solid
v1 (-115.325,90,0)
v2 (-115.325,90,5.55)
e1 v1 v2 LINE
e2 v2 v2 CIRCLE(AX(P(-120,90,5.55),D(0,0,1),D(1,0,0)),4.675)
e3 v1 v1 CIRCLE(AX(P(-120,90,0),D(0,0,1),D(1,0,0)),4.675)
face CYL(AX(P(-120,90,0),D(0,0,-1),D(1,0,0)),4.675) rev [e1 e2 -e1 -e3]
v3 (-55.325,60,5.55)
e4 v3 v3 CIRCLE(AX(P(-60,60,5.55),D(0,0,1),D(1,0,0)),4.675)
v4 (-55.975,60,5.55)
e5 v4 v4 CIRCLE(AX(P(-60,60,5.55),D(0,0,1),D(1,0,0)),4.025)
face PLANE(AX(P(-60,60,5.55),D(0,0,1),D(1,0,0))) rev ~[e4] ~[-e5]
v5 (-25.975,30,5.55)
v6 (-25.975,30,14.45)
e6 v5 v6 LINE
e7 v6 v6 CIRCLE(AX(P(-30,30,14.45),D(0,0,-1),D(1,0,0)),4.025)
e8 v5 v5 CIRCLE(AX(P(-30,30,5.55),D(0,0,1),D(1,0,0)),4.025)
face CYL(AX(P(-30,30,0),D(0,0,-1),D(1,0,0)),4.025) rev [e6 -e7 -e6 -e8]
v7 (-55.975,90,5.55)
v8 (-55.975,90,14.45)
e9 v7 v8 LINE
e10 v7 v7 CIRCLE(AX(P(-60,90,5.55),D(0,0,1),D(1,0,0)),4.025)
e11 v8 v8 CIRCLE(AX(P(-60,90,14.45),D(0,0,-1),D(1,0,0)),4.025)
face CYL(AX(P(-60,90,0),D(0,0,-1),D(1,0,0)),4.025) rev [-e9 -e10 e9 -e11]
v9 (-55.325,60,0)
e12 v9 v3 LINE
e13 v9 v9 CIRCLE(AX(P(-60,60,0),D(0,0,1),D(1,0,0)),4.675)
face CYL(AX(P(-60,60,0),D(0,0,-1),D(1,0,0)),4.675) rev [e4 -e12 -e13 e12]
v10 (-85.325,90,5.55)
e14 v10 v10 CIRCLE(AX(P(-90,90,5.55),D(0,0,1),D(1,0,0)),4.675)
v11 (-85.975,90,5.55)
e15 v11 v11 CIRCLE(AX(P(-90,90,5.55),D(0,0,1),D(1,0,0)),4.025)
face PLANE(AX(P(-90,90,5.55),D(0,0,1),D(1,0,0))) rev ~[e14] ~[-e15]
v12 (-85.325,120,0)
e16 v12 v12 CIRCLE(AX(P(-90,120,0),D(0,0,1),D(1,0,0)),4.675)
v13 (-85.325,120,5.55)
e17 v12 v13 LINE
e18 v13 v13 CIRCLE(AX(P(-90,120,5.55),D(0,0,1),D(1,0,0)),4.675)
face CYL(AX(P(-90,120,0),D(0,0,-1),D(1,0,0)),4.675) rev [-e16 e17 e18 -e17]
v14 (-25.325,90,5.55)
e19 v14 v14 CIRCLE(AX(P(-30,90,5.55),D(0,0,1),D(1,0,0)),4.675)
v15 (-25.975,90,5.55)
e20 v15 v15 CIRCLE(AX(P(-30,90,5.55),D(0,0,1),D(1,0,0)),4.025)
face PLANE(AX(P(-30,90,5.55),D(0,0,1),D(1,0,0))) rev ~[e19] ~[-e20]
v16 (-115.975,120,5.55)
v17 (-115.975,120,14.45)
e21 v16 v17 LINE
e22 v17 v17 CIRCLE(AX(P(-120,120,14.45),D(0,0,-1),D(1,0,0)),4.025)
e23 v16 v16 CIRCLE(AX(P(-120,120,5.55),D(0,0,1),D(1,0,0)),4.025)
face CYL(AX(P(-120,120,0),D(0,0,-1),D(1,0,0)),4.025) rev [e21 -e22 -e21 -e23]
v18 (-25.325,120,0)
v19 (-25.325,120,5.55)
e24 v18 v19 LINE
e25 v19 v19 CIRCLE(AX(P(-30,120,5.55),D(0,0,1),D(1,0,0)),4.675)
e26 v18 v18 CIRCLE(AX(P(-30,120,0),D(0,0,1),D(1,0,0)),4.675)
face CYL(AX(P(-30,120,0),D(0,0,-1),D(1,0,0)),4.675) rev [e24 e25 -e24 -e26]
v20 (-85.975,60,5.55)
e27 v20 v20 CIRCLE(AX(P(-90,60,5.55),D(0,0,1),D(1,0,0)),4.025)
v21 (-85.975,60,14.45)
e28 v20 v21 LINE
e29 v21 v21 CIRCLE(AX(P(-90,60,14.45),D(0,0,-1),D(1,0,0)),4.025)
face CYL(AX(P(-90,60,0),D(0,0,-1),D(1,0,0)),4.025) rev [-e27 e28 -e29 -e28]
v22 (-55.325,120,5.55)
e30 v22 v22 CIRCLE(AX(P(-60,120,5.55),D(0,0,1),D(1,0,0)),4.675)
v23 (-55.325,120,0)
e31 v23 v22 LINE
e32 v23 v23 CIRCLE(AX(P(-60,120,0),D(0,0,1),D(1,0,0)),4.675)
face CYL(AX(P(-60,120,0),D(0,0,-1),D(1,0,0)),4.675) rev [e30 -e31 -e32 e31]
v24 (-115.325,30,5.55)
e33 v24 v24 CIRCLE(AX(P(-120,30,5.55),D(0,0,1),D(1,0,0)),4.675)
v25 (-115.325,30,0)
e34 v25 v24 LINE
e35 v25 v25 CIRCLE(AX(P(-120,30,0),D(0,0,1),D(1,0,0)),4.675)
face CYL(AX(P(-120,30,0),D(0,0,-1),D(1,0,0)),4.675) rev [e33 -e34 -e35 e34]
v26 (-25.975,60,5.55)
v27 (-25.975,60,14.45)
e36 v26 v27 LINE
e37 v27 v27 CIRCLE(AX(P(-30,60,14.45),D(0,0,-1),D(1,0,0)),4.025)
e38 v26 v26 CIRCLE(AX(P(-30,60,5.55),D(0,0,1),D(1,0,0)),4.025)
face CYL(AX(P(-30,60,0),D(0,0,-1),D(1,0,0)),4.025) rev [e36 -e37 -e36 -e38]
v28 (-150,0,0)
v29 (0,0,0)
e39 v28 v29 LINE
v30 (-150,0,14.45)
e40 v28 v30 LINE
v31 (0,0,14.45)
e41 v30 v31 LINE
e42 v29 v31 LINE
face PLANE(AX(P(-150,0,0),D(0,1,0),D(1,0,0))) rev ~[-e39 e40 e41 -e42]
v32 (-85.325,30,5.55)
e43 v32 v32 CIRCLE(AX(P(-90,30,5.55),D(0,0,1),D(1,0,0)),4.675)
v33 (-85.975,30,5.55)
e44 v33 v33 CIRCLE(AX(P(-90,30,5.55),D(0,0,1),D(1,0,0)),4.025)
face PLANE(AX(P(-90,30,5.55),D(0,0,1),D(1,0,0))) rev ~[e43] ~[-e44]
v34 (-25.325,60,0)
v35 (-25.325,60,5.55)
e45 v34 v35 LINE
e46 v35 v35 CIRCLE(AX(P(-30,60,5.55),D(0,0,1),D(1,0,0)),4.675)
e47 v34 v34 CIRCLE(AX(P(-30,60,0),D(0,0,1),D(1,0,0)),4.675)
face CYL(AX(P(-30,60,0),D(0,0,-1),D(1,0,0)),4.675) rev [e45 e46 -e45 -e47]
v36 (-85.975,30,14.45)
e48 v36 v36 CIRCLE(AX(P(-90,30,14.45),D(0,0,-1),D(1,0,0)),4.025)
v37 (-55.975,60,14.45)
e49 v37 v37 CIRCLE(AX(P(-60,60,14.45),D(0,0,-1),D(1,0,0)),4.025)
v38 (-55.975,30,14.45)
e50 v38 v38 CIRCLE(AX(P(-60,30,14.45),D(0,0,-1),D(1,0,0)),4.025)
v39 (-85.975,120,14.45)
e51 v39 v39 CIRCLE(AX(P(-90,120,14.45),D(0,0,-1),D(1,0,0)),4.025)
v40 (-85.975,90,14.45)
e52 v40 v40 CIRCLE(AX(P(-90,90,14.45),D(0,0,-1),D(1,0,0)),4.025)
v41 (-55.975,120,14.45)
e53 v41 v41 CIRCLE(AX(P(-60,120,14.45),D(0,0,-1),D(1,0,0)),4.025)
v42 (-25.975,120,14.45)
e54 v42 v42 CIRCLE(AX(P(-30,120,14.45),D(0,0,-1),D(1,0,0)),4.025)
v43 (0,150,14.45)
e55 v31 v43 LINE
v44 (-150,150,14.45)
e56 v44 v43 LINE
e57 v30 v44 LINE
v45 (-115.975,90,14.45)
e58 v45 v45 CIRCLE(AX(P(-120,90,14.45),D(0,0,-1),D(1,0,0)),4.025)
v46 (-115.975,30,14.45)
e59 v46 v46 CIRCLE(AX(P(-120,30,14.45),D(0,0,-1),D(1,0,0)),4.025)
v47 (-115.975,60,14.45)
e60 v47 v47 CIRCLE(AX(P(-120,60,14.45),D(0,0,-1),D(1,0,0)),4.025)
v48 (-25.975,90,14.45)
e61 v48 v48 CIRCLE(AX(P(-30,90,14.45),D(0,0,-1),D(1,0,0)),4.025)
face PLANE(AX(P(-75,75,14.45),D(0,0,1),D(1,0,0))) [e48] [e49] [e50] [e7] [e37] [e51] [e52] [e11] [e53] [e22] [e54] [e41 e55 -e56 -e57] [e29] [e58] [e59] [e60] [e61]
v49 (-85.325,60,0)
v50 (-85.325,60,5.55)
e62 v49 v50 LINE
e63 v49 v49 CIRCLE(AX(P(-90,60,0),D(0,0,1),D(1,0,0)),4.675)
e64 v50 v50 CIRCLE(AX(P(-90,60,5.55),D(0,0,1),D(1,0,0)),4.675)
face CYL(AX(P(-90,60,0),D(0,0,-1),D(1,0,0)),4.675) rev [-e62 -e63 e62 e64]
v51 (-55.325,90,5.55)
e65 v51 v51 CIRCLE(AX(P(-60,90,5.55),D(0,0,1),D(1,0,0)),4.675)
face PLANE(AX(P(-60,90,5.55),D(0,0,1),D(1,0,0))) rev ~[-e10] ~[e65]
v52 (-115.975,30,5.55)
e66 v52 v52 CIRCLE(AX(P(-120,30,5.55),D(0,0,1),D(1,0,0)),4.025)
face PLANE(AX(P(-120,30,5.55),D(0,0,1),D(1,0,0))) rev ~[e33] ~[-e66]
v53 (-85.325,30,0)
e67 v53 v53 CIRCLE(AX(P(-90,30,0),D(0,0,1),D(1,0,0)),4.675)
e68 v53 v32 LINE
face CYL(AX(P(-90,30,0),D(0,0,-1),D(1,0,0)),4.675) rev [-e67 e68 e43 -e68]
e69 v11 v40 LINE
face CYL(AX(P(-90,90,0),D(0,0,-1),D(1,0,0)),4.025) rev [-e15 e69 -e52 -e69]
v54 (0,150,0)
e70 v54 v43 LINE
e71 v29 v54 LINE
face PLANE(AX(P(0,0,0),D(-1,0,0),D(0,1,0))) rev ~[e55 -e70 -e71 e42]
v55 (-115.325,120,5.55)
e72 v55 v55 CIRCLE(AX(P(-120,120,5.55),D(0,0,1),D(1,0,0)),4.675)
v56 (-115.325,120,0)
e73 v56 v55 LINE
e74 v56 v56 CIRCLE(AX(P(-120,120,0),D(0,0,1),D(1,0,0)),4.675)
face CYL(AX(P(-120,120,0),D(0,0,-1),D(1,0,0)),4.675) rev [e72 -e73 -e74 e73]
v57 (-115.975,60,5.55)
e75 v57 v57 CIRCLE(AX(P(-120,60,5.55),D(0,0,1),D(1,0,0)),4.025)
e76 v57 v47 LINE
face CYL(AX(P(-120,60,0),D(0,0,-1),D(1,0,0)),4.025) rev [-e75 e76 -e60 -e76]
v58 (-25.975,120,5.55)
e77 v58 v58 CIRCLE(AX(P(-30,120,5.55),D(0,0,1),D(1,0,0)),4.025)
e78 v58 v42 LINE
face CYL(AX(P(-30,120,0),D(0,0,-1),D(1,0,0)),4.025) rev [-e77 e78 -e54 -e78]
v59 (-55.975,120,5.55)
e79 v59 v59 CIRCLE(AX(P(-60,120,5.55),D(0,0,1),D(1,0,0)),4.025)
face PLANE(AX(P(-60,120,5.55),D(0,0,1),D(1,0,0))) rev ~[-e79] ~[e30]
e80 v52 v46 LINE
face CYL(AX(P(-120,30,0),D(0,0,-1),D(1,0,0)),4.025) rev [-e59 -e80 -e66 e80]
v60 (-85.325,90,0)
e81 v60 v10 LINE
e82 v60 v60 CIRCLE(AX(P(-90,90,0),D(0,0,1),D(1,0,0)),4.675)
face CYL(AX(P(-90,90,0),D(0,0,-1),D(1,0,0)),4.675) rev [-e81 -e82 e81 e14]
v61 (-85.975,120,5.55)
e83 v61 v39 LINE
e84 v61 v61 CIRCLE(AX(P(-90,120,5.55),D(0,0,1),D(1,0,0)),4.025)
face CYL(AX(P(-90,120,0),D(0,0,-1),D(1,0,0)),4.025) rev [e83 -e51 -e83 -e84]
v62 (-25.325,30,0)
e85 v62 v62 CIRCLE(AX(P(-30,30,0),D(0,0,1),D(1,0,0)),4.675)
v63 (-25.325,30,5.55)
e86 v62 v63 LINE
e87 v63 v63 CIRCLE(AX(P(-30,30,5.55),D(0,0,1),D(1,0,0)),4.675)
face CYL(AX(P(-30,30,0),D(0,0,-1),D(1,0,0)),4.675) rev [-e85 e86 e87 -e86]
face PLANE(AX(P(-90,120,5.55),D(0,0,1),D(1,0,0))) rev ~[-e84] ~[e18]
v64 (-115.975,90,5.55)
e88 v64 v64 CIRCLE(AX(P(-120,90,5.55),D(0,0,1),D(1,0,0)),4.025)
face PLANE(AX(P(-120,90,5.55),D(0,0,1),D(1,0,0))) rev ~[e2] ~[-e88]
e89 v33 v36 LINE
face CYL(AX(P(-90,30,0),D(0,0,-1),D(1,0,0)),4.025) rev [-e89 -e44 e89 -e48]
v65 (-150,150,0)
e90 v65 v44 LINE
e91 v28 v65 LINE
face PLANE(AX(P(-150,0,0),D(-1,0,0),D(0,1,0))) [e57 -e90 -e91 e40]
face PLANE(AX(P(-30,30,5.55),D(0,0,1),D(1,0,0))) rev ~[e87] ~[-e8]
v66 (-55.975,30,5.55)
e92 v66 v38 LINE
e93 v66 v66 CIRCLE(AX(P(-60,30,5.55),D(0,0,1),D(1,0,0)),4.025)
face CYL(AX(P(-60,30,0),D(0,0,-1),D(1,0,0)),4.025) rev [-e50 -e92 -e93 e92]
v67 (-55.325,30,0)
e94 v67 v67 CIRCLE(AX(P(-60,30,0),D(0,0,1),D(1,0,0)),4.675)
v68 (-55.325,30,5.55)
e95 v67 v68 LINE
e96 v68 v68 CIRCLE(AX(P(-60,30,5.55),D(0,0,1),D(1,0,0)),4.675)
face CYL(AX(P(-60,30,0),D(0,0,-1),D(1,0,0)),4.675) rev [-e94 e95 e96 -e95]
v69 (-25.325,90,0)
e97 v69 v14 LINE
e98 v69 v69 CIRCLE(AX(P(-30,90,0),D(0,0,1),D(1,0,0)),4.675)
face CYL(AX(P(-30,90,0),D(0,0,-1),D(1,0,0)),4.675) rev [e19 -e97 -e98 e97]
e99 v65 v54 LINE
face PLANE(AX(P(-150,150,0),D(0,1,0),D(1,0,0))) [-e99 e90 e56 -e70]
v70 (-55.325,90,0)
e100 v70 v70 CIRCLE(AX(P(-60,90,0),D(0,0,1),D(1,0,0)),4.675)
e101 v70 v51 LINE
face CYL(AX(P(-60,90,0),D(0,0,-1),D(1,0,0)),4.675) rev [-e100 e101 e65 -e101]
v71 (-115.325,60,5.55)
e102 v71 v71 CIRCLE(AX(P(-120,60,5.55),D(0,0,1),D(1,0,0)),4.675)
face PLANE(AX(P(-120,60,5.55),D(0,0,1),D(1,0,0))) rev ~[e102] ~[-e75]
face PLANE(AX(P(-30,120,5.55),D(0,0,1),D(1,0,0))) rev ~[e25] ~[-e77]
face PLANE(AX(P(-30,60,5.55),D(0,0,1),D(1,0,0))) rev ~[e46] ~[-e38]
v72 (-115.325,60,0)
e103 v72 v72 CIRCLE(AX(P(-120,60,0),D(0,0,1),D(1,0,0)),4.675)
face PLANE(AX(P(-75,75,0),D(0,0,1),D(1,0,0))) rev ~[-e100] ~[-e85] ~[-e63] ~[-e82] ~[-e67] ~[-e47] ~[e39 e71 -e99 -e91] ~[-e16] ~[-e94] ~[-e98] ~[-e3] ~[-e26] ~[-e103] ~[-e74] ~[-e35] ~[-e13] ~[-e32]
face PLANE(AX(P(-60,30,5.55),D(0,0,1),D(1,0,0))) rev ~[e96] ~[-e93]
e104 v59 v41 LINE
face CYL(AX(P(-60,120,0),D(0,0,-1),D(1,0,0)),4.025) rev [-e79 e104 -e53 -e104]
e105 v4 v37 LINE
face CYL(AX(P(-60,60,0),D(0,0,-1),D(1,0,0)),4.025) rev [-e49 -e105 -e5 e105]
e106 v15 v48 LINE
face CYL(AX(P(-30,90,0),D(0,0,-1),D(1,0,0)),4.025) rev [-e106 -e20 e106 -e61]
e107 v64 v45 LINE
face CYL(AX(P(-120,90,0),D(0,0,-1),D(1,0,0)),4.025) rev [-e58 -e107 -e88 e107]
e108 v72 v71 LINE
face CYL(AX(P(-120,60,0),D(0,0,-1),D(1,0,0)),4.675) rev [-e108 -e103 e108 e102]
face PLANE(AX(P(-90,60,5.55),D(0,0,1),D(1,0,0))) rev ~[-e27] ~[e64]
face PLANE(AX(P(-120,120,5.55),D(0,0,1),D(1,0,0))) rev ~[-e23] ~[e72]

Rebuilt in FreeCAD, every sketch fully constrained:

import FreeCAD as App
import Part
import Sketcher

V = App.Vector
Q = App.Units.Quantity

doc = App.newDocument("Part")
params = doc.addObject("Spreadsheet::Sheet", "Params")
for row, (alias, value) in enumerate([
    ("sketch1_width", "150 mm"),
    ("pad1_length", "14.45 mm"),
    ("sketch2_diameter", "8.05 mm"),
    ("pocket1_length", "25 mm"),
    ("sketch3_diameter", "9.35 mm"),
    ("sketch3_diameter2", "8.05 mm"),
    ("pocket2_length", "5.55 mm"),
], start=1):
    params.set(f"A{row}", alias)
    params.set(f"B{row}", "=" + value)
    params.setAlias(f"B{row}", alias)

body = doc.addObject("PartDesign::Body", "Body")

sketch1 = body.newObject("Sketcher::SketchObject", "Sketch")
sketch1.AttachmentSupport = (doc.getObject("XY_Plane"), [""])
sketch1.MapMode = "FlatFace"
sketch1.addGeometry([
    Part.LineSegment(V(-150, 150, 0), V(-150, 0, 0)),
    Part.LineSegment(V(-150, 0, 0), V(0, 0, 0)),
    Part.LineSegment(V(0, 0, 0), V(0, 150, 0)),
    Part.LineSegment(V(0, 150, 0), V(-150, 150, 0)),
], False)
sketch1.addConstraint([
    Sketcher.Constraint("Coincident", 0, 2, 1, 1),
    Sketcher.Constraint("Coincident", 1, 2, 2, 1),
    Sketcher.Constraint("Coincident", 2, 2, 3, 1),
    Sketcher.Constraint("Coincident", 3, 2, 0, 1),
    Sketcher.Constraint("Vertical", 0),
    Sketcher.Constraint("Horizontal", 1),
    Sketcher.Constraint("Vertical", 2),
    Sketcher.Constraint("Horizontal", 3),
    Sketcher.Constraint("Coincident", 1, 2, -1, 1),
    Sketcher.Constraint("Equal", 3, 0),
    Sketcher.Constraint("DistanceX", 1, 1, 1, 2, Q("150 mm")),
])
sketch1.setExpression("Constraints[10]", "Params.sketch1_width")
pad1 = body.newObject("PartDesign::Pad", "Pad")
pad1.Profile = sketch1
pad1.setExpression("Length", "Params.pad1_length")

sketch2 = body.newObject("Sketcher::SketchObject", "Sketch001")
sketch2.AttachmentSupport = (doc.getObject("XY_Plane"), [""])
sketch2.MapMode = "FlatFace"
sketch2.addGeometry([
    Part.Circle(V(-120, 30, 0), V(0, 0, 1), 4),
    Part.Circle(V(-90, 30, 0), V(0, 0, 1), 4),
    Part.Circle(V(-60, 30, 0), V(0, 0, 1), 4),
    Part.Circle(V(-30, 30, 0), V(0, 0, 1), 4),
    Part.Circle(V(-30, 60, 0), V(0, 0, 1), 4),
    Part.Circle(V(-60, 60, 0), V(0, 0, 1), 4),
    Part.Circle(V(-90, 60, 0), V(0, 0, 1), 4),
    Part.Circle(V(-120, 60, 0), V(0, 0, 1), 4),
    Part.Circle(V(-120, 90, 0), V(0, 0, 1), 4),
    Part.Circle(V(-90, 90, 0), V(0, 0, 1), 4),
    Part.Circle(V(-60, 90, 0), V(0, 0, 1), 4),
    Part.Circle(V(-30, 90, 0), V(0, 0, 1), 4),
    Part.Circle(V(-30, 120, 0), V(0, 0, 1), 4),
    Part.Circle(V(-60, 120, 0), V(0, 0, 1), 4),
    Part.Circle(V(-90, 120, 0), V(0, 0, 1), 4),
    Part.Circle(V(-120, 120, 0), V(0, 0, 1), 4),
], False)
sketch2.addConstraint([
    Sketcher.Constraint("Equal", 0, 1),
    Sketcher.Constraint("Equal", 1, 2),
    Sketcher.Constraint("Equal", 2, 3),
    Sketcher.Constraint("Equal", 3, 4),
    Sketcher.Constraint("Equal", 4, 5),
    Sketcher.Constraint("Equal", 5, 6),
    Sketcher.Constraint("Equal", 6, 7),
    Sketcher.Constraint("Equal", 7, 8),
    Sketcher.Constraint("Equal", 8, 9),
    Sketcher.Constraint("Equal", 9, 10),
    Sketcher.Constraint("Equal", 10, 11),
    Sketcher.Constraint("Equal", 11, 12),
    Sketcher.Constraint("Equal", 12, 13),
    Sketcher.Constraint("Equal", 13, 14),
    Sketcher.Constraint("Equal", 14, 15),
    Sketcher.Constraint("Horizontal", 0, 3, 1, 3),
    Sketcher.Constraint("Horizontal", 1, 3, 2, 3),
    Sketcher.Constraint("Horizontal", 2, 3, 3, 3),
    Sketcher.Constraint("Horizontal", 4, 3, 5, 3),
    Sketcher.Constraint("Horizontal", 5, 3, 6, 3),
    Sketcher.Constraint("Horizontal", 6, 3, 7, 3),
    Sketcher.Constraint("Horizontal", 8, 3, 9, 3),
    Sketcher.Constraint("Horizontal", 9, 3, 10, 3),
    Sketcher.Constraint("Horizontal", 10, 3, 11, 3),
    Sketcher.Constraint("Horizontal", 12, 3, 13, 3),
    Sketcher.Constraint("Horizontal", 13, 3, 14, 3),
    Sketcher.Constraint("Horizontal", 14, 3, 15, 3),
    Sketcher.Constraint("Vertical", 3, 3, 4, 3),
    Sketcher.Constraint("Vertical", 2, 3, 5, 3),
    Sketcher.Constraint("Vertical", 1, 3, 6, 3),
    Sketcher.Constraint("Vertical", 0, 3, 7, 3),
    Sketcher.Constraint("Vertical", 7, 3, 8, 3),
    Sketcher.Constraint("Vertical", 6, 3, 9, 3),
    Sketcher.Constraint("Vertical", 5, 3, 10, 3),
    Sketcher.Constraint("Vertical", 4, 3, 11, 3),
    Sketcher.Constraint("Vertical", 11, 3, 12, 3),
    Sketcher.Constraint("Vertical", 10, 3, 13, 3),
    Sketcher.Constraint("Vertical", 9, 3, 14, 3),
    Sketcher.Constraint("Vertical", 8, 3, 15, 3),
    Sketcher.Constraint("Diameter", 0, Q("8.05 mm")),
    Sketcher.Constraint("DistanceX", 0, 3, -1, 1, Q("120 mm")),
    Sketcher.Constraint("DistanceY", -1, 1, 0, 3, Q("30 mm")),
    Sketcher.Constraint("DistanceX", 1, 3, -1, 1, Q("90 mm")),
    Sketcher.Constraint("DistanceX", 2, 3, -1, 1, Q("60 mm")),
    Sketcher.Constraint("DistanceX", 3, 3, -1, 1, Q("30 mm")),
    Sketcher.Constraint("DistanceY", -1, 1, 4, 3, Q("60 mm")),
    Sketcher.Constraint("DistanceY", -1, 1, 8, 3, Q("90 mm")),
    Sketcher.Constraint("DistanceY", -1, 1, 12, 3, Q("120 mm")),
])
sketch2.setExpression("Constraints[39]", "Params.sketch2_diameter")
pocket1 = body.newObject("PartDesign::Pocket", "Pocket")
pocket1.Profile = sketch2
pocket1.setExpression("Length", "Params.pocket1_length")
pocket1.Reversed = True

sketch3 = body.newObject("Sketcher::SketchObject", "Sketch002")
sketch3.AttachmentSupport = (doc.getObject("XY_Plane"), [""])
sketch3.MapMode = "FlatFace"
sketch3.addGeometry([
    Part.Circle(V(-120, 30, 0), V(0, 0, 1), 4.7),
    Part.Circle(V(-120, 30, 0), V(0, 0, 1), 4),
    Part.Circle(V(-90, 30, 0), V(0, 0, 1), 4.7),
    Part.Circle(V(-90, 30, 0), V(0, 0, 1), 4),
    Part.Circle(V(-60, 30, 0), V(0, 0, 1), 4.7),
    Part.Circle(V(-60, 30, 0), V(0, 0, 1), 4),
    Part.Circle(V(-30, 30, 0), V(0, 0, 1), 4.7),
    Part.Circle(V(-30, 30, 0), V(0, 0, 1), 4),
    Part.Circle(V(-30, 60, 0), V(0, 0, 1), 4.7),
    Part.Circle(V(-30, 60, 0), V(0, 0, 1), 4),
    Part.Circle(V(-60, 60, 0), V(0, 0, 1), 4.7),
    Part.Circle(V(-60, 60, 0), V(0, 0, 1), 4),
    Part.Circle(V(-90, 60, 0), V(0, 0, 1), 4.7),
    Part.Circle(V(-90, 60, 0), V(0, 0, 1), 4),
    Part.Circle(V(-120, 60, 0), V(0, 0, 1), 4.7),
    Part.Circle(V(-120, 60, 0), V(0, 0, 1), 4),
    Part.Circle(V(-120, 90, 0), V(0, 0, 1), 4.7),
    Part.Circle(V(-120, 90, 0), V(0, 0, 1), 4),
    Part.Circle(V(-90, 90, 0), V(0, 0, 1), 4.7),
    Part.Circle(V(-90, 90, 0), V(0, 0, 1), 4),
    Part.Circle(V(-60, 90, 0), V(0, 0, 1), 4.7),
    Part.Circle(V(-60, 90, 0), V(0, 0, 1), 4),
    Part.Circle(V(-30, 90, 0), V(0, 0, 1), 4.7),
    Part.Circle(V(-30, 90, 0), V(0, 0, 1), 4),
    Part.Circle(V(-30, 120, 0), V(0, 0, 1), 4.7),
    Part.Circle(V(-30, 120, 0), V(0, 0, 1), 4),
    Part.Circle(V(-60, 120, 0), V(0, 0, 1), 4.7),
    Part.Circle(V(-60, 120, 0), V(0, 0, 1), 4),
    Part.Circle(V(-90, 120, 0), V(0, 0, 1), 4.7),
    Part.Circle(V(-90, 120, 0), V(0, 0, 1), 4),
    Part.Circle(V(-120, 120, 0), V(0, 0, 1), 4.7),
    Part.Circle(V(-120, 120, 0), V(0, 0, 1), 4),
], False)
sketch3.addConstraint([
    Sketcher.Constraint("Coincident", 1, 3, 0, 3),
    Sketcher.Constraint("Coincident", 3, 3, 2, 3),
    Sketcher.Constraint("Coincident", 5, 3, 4, 3),
    Sketcher.Constraint("Coincident", 7, 3, 6, 3),
    Sketcher.Constraint("Coincident", 9, 3, 8, 3),
    Sketcher.Constraint("Coincident", 11, 3, 10, 3),
    Sketcher.Constraint("Coincident", 13, 3, 12, 3),
    Sketcher.Constraint("Coincident", 15, 3, 14, 3),
    Sketcher.Constraint("Coincident", 17, 3, 16, 3),
    Sketcher.Constraint("Coincident", 19, 3, 18, 3),
    Sketcher.Constraint("Coincident", 21, 3, 20, 3),
    Sketcher.Constraint("Coincident", 23, 3, 22, 3),
    Sketcher.Constraint("Coincident", 25, 3, 24, 3),
    Sketcher.Constraint("Coincident", 27, 3, 26, 3),
    Sketcher.Constraint("Coincident", 29, 3, 28, 3),
    Sketcher.Constraint("Coincident", 31, 3, 30, 3),
    Sketcher.Constraint("Equal", 0, 2),
    Sketcher.Constraint("Equal", 1, 3),
    Sketcher.Constraint("Equal", 2, 4),
    Sketcher.Constraint("Equal", 3, 5),
    Sketcher.Constraint("Equal", 4, 6),
    Sketcher.Constraint("Equal", 5, 7),
    Sketcher.Constraint("Equal", 6, 8),
    Sketcher.Constraint("Equal", 7, 9),
    Sketcher.Constraint("Equal", 8, 10),
    Sketcher.Constraint("Equal", 9, 11),
    Sketcher.Constraint("Equal", 10, 12),
    Sketcher.Constraint("Equal", 11, 13),
    Sketcher.Constraint("Equal", 12, 14),
    Sketcher.Constraint("Equal", 13, 15),
    Sketcher.Constraint("Equal", 14, 16),
    Sketcher.Constraint("Equal", 15, 17),
    Sketcher.Constraint("Equal", 16, 18),
    Sketcher.Constraint("Equal", 17, 19),
    Sketcher.Constraint("Equal", 18, 20),
    Sketcher.Constraint("Equal", 19, 21),
    Sketcher.Constraint("Equal", 20, 22),
    Sketcher.Constraint("Equal", 21, 23),
    Sketcher.Constraint("Equal", 22, 24),
    Sketcher.Constraint("Equal", 23, 25),
    Sketcher.Constraint("Equal", 24, 26),
    Sketcher.Constraint("Equal", 25, 27),
    Sketcher.Constraint("Equal", 26, 28),
    Sketcher.Constraint("Equal", 27, 29),
    Sketcher.Constraint("Equal", 28, 30),
    Sketcher.Constraint("Equal", 29, 31),
    Sketcher.Constraint("Horizontal", 1, 3, 2, 3),
    Sketcher.Constraint("Horizontal", 3, 3, 4, 3),
    Sketcher.Constraint("Horizontal", 5, 3, 6, 3),
    Sketcher.Constraint("Horizontal", 9, 3, 10, 3),
    Sketcher.Constraint("Horizontal", 11, 3, 12, 3),
    Sketcher.Constraint("Horizontal", 13, 3, 14, 3),
    Sketcher.Constraint("Horizontal", 17, 3, 18, 3),
    Sketcher.Constraint("Horizontal", 19, 3, 20, 3),
    Sketcher.Constraint("Horizontal", 21, 3, 22, 3),
    Sketcher.Constraint("Horizontal", 25, 3, 26, 3),
    Sketcher.Constraint("Horizontal", 27, 3, 28, 3),
    Sketcher.Constraint("Horizontal", 29, 3, 30, 3),
    Sketcher.Constraint("Vertical", 7, 3, 8, 3),
    Sketcher.Constraint("Vertical", 5, 3, 10, 3),
    Sketcher.Constraint("Vertical", 3, 3, 12, 3),
    Sketcher.Constraint("Vertical", 1, 3, 14, 3),
    Sketcher.Constraint("Vertical", 15, 3, 16, 3),
    Sketcher.Constraint("Vertical", 13, 3, 18, 3),
    Sketcher.Constraint("Vertical", 11, 3, 20, 3),
    Sketcher.Constraint("Vertical", 9, 3, 22, 3),
    Sketcher.Constraint("Vertical", 23, 3, 24, 3),
    Sketcher.Constraint("Vertical", 21, 3, 26, 3),
    Sketcher.Constraint("Vertical", 19, 3, 28, 3),
    Sketcher.Constraint("Vertical", 17, 3, 30, 3),
    Sketcher.Constraint("Diameter", 0, Q("9.35 mm")),
    Sketcher.Constraint("Diameter", 1, Q("8.05 mm")),
    Sketcher.Constraint("DistanceX", 0, 3, -1, 1, Q("120 mm")),
    Sketcher.Constraint("DistanceY", -1, 1, 0, 3, Q("30 mm")),
    Sketcher.Constraint("DistanceX", 2, 3, -1, 1, Q("90 mm")),
    Sketcher.Constraint("DistanceX", 4, 3, -1, 1, Q("60 mm")),
    Sketcher.Constraint("DistanceX", 6, 3, -1, 1, Q("30 mm")),
    Sketcher.Constraint("DistanceY", -1, 1, 8, 3, Q("60 mm")),
    Sketcher.Constraint("DistanceY", -1, 1, 16, 3, Q("90 mm")),
    Sketcher.Constraint("DistanceY", -1, 1, 24, 3, Q("120 mm")),
])
sketch3.setExpression("Constraints[70]", "Params.sketch3_diameter")
sketch3.setExpression("Constraints[71]", "Params.sketch3_diameter2")
pocket2 = body.newObject("PartDesign::Pocket", "Pocket001")
pocket2.Profile = sketch3
pocket2.setExpression("Length", "Params.pocket2_length")
pocket2.Reversed = True

doc.recompute()
